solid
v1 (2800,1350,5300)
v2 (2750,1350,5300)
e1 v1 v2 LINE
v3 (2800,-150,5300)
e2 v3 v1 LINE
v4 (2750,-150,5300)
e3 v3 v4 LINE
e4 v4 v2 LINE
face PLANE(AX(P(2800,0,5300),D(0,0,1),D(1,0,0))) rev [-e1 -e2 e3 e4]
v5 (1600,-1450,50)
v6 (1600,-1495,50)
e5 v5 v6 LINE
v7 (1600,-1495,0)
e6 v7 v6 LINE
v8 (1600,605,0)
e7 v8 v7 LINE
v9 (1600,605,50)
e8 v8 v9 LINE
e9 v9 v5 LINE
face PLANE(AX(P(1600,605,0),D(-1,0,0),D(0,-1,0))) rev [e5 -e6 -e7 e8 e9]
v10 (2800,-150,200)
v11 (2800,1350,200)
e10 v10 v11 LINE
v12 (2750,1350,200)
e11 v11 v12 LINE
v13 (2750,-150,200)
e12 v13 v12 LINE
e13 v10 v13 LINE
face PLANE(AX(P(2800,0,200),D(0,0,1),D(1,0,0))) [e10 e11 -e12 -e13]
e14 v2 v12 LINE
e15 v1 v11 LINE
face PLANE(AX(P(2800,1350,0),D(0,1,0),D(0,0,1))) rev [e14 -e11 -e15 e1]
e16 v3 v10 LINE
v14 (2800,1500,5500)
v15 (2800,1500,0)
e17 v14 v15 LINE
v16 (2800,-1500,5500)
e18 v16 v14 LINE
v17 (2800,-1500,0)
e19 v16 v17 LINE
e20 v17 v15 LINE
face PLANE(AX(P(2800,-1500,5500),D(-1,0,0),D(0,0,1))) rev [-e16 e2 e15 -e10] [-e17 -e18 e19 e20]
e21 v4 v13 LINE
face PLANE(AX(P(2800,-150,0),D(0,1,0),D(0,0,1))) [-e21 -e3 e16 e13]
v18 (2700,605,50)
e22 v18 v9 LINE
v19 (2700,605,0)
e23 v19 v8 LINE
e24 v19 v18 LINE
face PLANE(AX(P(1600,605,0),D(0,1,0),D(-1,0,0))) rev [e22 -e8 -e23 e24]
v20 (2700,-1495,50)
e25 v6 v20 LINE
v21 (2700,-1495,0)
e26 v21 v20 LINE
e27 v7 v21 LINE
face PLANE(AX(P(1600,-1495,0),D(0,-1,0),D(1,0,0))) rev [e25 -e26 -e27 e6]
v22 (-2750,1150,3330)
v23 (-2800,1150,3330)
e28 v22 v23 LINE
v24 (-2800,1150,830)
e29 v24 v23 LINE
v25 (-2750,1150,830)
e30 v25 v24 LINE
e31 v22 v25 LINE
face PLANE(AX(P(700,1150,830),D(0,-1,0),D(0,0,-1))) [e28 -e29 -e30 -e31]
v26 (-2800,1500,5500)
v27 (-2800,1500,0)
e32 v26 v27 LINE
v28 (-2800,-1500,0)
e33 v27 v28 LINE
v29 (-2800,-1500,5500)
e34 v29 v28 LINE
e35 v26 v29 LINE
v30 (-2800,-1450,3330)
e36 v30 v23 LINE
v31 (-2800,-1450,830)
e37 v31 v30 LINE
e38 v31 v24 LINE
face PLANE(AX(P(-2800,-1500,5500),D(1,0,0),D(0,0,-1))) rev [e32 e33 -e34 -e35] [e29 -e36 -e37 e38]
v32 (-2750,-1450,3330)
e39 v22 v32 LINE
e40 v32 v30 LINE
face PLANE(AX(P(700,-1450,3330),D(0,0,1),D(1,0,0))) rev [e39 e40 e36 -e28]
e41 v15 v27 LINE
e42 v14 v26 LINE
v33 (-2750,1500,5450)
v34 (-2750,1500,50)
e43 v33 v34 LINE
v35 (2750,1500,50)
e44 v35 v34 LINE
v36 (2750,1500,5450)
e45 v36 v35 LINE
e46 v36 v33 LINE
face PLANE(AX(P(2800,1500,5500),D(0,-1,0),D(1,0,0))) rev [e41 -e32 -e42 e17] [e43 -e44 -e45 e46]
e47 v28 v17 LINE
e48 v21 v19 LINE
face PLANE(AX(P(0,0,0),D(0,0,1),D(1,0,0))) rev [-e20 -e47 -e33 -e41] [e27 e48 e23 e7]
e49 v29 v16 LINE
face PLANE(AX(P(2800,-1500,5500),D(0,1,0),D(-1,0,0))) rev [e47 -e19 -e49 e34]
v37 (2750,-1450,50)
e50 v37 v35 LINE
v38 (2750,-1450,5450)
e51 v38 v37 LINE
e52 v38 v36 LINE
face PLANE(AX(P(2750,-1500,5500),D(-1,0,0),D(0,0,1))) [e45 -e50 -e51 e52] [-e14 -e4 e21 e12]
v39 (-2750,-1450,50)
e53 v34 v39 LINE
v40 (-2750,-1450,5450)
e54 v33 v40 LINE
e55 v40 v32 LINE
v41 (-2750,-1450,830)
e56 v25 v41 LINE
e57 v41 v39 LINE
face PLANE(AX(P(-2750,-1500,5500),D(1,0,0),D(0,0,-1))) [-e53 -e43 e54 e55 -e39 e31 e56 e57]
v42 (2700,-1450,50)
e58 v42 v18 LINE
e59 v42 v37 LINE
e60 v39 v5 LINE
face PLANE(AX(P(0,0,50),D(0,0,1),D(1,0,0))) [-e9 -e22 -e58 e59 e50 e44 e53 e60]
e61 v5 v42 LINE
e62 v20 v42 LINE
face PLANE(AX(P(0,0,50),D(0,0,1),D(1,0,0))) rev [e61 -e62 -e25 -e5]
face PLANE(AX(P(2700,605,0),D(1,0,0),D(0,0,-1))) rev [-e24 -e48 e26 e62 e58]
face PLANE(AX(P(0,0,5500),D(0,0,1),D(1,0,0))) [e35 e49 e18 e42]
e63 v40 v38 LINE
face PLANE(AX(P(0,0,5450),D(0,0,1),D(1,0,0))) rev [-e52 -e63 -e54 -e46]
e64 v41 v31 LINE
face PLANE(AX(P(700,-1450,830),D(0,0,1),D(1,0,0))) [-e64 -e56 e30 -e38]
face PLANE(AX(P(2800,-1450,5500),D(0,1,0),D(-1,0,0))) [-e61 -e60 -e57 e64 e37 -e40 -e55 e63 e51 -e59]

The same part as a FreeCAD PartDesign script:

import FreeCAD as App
import Part
import Sketcher

V = App.Vector


def faces_at(feature, points):
    """Names of the faces that lie closest to the given points."""
    faces = feature.Shape.Faces
    near = lambda p: min(range(len(faces)), key=lambda i: faces[i].distToShape(Part.Vertex(*p))[0])
    return sorted({f"Face{near(p) + 1}" for p in points})


def add_polygon(sketch, points):
    """Adds a closed chain of lines whose ends are joined by coincident constraints."""
    first, n = sketch.GeometryCount, len(points)
    for a, b in zip(points, points[1:] + points[:1]):
        sketch.addGeometry(Part.LineSegment(App.Vector(*a, 0), App.Vector(*b, 0)), False)
    for i in range(n):
        sketch.addConstraint(Sketcher.Constraint("Coincident", first + i, 2, first + (i + 1) % n, 1))

doc = App.newDocument("Part")
body = doc.addObject("PartDesign::Body", "Body")

sketch1 = doc.addObject("Sketcher::SketchObject", "Sketch")
body.addObject(sketch1)
sketch1.AttachmentSupport = (doc.XY_Plane, [""])
sketch1.MapMode = "FlatFace"
add_polygon(sketch1, [(-2800, 1500), (-2800, -1500), (2800, -1500), (2800, 1500)])
sketch1.addConstraint([
    Sketcher.Constraint("Vertical", 0),
    Sketcher.Constraint("Horizontal", 1),
    Sketcher.Constraint("Vertical", 2),
    Sketcher.Constraint("Horizontal", 3),
    Sketcher.Constraint("Symmetric", 0, 2, 2, 2, -1, 1),
    Sketcher.Constraint("DistanceX", 1, 1, 1, 2, 5600.0),
    Sketcher.Constraint("DistanceY", 0, 2, 0, 1, 3000.0),
])
pad1 = doc.addObject("PartDesign::Pad", "Pad")
body.addObject(pad1)
pad1.Profile = sketch1
pad1.Length = 5500
doc.recompute()

thickness = doc.addObject("PartDesign::Thickness", "Thickness")
body.addObject(thickness)
thickness.Base = (pad1, faces_at(pad1, [(0, 1500, 2750)]))
thickness.Value = 50
thickness.Reversed = True
thickness.Join = "Intersection"

sketch2 = doc.addObject("Sketcher::SketchObject", "Sketch001")
body.addObject(sketch2)
sketch2.AttachmentSupport = (doc.YZ_Plane, [""])
sketch2.MapMode = "FlatFace"
sketch2.AttachmentOffset = App.Placement(V(0, 0, -2800), App.Rotation())
add_polygon(sketch2, [(1150, 830), (-1450, 830), (-1450, 3330), (1150, 3330)])
sketch2.addConstraint([
    Sketcher.Constraint("Horizontal", 0),
    Sketcher.Constraint("Vertical", 1),
    Sketcher.Constraint("Horizontal", 2),
    Sketcher.Constraint("Vertical", 3),
    Sketcher.Constraint("DistanceX", 0, 2, 0, 1, 2600.0),
    Sketcher.Constraint("DistanceY", 1, 1, 1, 2, 2500.0),
    Sketcher.Constraint("DistanceX", 0, 2, -1, 1, 1450.0),
    Sketcher.Constraint("DistanceY", -1, 1, 0, 2, 830.0),
])
pocket1 = doc.addObject("PartDesign::Pocket", "Pocket")
body.addObject(pocket1)
pocket1.Profile = sketch2
pocket1.Length = 3500
pocket1.Reversed = True

sketch3 = doc.addObject("Sketcher::SketchObject", "Sketch002")
body.addObject(sketch3)
sketch3.AttachmentSupport = (doc.XY_Plane, [""])
sketch3.MapMode = "FlatFace"
sketch3.AttachmentOffset = App.Placement(V(0, 0, 50), App.Rotation())
add_polygon(sketch3, [(1600, 605), (1600, -1495), (2700, -1495), (2700, 605)])
sketch3.addConstraint([
    Sketcher.Constraint("Vertical", 0),
    Sketcher.Constraint("Horizontal", 1),
    Sketcher.Constraint("Vertical", 2),
    Sketcher.Constraint("Horizontal", 3),
    Sketcher.Constraint("DistanceX", 1, 1, 1, 2, 1100.0),
    Sketcher.Constraint("DistanceY", 0, 2, 0, 1, 2100.0),
    Sketcher.Constraint("DistanceX", -1, 1, 0, 2, 1600.0),
    Sketcher.Constraint("DistanceY", 0, 2, -1, 1, 1495.0),
])
pocket2 = doc.addObject("PartDesign::Pocket", "Pocket001")
body.addObject(pocket2)
pocket2.Profile = sketch3
pocket2.Type = "ThroughAll"

sketch4 = doc.addObject("Sketcher::SketchObject", "Sketch003")
body.addObject(sketch4)
sketch4.AttachmentSupport = (doc.YZ_Plane, [""])
sketch4.MapMode = "FlatFace"
sketch4.AttachmentOffset = App.Placement(V(0, 0, 2750), App.Rotation())
add_polygon(sketch4, [(1350, 200), (-150, 200), (-150, 5300), (1350, 5300)])
sketch4.addConstraint([
    Sketcher.Constraint("Horizontal", 0),
    Sketcher.Constraint("Vertical", 1),
    Sketcher.Constraint("Horizontal", 2),
    Sketcher.Constraint("Vertical", 3),
    Sketcher.Constraint("DistanceX", 0, 2, 0, 1, 1500.0),
    Sketcher.Constraint("DistanceY", 1, 1, 1, 2, 5100.0),
    Sketcher.Constraint("DistanceX", 0, 2, -1, 1, 150.0),
    Sketcher.Constraint("DistanceY", -1, 1, 0, 2, 200.0),
])
pocket3 = doc.addObject("PartDesign::Pocket", "Pocket002")
body.addObject(pocket3)
pocket3.Profile = sketch4
pocket3.Type = "ThroughAll"
pocket3.Reversed = True

doc.recompute()
